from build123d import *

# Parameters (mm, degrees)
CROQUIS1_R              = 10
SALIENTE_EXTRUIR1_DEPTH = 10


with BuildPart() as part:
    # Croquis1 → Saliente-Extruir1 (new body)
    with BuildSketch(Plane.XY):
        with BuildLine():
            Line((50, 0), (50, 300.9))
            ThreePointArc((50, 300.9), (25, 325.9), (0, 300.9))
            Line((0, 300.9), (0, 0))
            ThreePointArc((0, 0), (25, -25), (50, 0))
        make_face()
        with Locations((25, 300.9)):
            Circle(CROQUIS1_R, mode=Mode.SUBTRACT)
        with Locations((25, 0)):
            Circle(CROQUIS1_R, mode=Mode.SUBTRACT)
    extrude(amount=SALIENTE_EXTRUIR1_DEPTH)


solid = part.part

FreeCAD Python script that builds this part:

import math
import FreeCAD as App
import Part
import Sketcher
from FreeCAD import Vector

doc = App.newDocument("Part")
body = doc.addObject("PartDesign::Body", "Body")

# Sketch on XY plane
sketch1 = body.newObject("Sketcher::SketchObject", "Sketch")
sketch1.AttachmentSupport = (doc.getObject("XY_Plane"), [""])
sketch1.MapMode = "FlatFace"
sketch1.addGeometry([
    Part.LineSegment(Vector(50, 0, 0), Vector(50, 301, 0)),  # 0
    Part.ArcOfCircle(Part.Circle(Vector(25, 301, 0), Vector(0, 0, 1), 25), math.radians(0), math.radians(180)),  # 1
    Part.LineSegment(Vector(0, 301, 0), Vector(0, 0, 0)),  # 2
    Part.ArcOfCircle(Part.Circle(Vector(25, 0, 0), Vector(0, 0, 1), 25), math.radians(180), math.radians(360)),  # 3
    Part.Circle(Vector(25, 0, 0), Vector(0, 0, 1), 10),  # 4
    Part.Circle(Vector(25, 301, 0), Vector(0, 0, 1), 10),  # 5
], False)
sketch1.addConstraint([
    Sketcher.Constraint("Tangent", 0, 2, 1, 1),
    Sketcher.Constraint("Tangent", 1, 2, 2, 1),
    Sketcher.Constraint("Tangent", 2, 2, 3, 1),
    Sketcher.Constraint("Tangent", 3, 2, 0, 1),
    Sketcher.Constraint("Vertical", 0),
    Sketcher.Constraint("Vertical", 2),
    Sketcher.Constraint("Coincident", 2, 2, -1, 1),
    Sketcher.Constraint("Coincident", 4, 3, 3, 3),
    Sketcher.Constraint("Coincident", 5, 3, 1, 3),
    Sketcher.Constraint("Equal", 4, 5),
    Sketcher.Constraint("Diameter", 4, 20.0),
    Sketcher.Constraint("Radius", 1, 25.0),
    Sketcher.Constraint("DistanceY", 0, 1, 0, 2, 300.9),
])
pad1 = body.newObject("PartDesign::Pad", "Pad")
pad1.Profile = sketch1
pad1.Length = 10

doc.recompute()
